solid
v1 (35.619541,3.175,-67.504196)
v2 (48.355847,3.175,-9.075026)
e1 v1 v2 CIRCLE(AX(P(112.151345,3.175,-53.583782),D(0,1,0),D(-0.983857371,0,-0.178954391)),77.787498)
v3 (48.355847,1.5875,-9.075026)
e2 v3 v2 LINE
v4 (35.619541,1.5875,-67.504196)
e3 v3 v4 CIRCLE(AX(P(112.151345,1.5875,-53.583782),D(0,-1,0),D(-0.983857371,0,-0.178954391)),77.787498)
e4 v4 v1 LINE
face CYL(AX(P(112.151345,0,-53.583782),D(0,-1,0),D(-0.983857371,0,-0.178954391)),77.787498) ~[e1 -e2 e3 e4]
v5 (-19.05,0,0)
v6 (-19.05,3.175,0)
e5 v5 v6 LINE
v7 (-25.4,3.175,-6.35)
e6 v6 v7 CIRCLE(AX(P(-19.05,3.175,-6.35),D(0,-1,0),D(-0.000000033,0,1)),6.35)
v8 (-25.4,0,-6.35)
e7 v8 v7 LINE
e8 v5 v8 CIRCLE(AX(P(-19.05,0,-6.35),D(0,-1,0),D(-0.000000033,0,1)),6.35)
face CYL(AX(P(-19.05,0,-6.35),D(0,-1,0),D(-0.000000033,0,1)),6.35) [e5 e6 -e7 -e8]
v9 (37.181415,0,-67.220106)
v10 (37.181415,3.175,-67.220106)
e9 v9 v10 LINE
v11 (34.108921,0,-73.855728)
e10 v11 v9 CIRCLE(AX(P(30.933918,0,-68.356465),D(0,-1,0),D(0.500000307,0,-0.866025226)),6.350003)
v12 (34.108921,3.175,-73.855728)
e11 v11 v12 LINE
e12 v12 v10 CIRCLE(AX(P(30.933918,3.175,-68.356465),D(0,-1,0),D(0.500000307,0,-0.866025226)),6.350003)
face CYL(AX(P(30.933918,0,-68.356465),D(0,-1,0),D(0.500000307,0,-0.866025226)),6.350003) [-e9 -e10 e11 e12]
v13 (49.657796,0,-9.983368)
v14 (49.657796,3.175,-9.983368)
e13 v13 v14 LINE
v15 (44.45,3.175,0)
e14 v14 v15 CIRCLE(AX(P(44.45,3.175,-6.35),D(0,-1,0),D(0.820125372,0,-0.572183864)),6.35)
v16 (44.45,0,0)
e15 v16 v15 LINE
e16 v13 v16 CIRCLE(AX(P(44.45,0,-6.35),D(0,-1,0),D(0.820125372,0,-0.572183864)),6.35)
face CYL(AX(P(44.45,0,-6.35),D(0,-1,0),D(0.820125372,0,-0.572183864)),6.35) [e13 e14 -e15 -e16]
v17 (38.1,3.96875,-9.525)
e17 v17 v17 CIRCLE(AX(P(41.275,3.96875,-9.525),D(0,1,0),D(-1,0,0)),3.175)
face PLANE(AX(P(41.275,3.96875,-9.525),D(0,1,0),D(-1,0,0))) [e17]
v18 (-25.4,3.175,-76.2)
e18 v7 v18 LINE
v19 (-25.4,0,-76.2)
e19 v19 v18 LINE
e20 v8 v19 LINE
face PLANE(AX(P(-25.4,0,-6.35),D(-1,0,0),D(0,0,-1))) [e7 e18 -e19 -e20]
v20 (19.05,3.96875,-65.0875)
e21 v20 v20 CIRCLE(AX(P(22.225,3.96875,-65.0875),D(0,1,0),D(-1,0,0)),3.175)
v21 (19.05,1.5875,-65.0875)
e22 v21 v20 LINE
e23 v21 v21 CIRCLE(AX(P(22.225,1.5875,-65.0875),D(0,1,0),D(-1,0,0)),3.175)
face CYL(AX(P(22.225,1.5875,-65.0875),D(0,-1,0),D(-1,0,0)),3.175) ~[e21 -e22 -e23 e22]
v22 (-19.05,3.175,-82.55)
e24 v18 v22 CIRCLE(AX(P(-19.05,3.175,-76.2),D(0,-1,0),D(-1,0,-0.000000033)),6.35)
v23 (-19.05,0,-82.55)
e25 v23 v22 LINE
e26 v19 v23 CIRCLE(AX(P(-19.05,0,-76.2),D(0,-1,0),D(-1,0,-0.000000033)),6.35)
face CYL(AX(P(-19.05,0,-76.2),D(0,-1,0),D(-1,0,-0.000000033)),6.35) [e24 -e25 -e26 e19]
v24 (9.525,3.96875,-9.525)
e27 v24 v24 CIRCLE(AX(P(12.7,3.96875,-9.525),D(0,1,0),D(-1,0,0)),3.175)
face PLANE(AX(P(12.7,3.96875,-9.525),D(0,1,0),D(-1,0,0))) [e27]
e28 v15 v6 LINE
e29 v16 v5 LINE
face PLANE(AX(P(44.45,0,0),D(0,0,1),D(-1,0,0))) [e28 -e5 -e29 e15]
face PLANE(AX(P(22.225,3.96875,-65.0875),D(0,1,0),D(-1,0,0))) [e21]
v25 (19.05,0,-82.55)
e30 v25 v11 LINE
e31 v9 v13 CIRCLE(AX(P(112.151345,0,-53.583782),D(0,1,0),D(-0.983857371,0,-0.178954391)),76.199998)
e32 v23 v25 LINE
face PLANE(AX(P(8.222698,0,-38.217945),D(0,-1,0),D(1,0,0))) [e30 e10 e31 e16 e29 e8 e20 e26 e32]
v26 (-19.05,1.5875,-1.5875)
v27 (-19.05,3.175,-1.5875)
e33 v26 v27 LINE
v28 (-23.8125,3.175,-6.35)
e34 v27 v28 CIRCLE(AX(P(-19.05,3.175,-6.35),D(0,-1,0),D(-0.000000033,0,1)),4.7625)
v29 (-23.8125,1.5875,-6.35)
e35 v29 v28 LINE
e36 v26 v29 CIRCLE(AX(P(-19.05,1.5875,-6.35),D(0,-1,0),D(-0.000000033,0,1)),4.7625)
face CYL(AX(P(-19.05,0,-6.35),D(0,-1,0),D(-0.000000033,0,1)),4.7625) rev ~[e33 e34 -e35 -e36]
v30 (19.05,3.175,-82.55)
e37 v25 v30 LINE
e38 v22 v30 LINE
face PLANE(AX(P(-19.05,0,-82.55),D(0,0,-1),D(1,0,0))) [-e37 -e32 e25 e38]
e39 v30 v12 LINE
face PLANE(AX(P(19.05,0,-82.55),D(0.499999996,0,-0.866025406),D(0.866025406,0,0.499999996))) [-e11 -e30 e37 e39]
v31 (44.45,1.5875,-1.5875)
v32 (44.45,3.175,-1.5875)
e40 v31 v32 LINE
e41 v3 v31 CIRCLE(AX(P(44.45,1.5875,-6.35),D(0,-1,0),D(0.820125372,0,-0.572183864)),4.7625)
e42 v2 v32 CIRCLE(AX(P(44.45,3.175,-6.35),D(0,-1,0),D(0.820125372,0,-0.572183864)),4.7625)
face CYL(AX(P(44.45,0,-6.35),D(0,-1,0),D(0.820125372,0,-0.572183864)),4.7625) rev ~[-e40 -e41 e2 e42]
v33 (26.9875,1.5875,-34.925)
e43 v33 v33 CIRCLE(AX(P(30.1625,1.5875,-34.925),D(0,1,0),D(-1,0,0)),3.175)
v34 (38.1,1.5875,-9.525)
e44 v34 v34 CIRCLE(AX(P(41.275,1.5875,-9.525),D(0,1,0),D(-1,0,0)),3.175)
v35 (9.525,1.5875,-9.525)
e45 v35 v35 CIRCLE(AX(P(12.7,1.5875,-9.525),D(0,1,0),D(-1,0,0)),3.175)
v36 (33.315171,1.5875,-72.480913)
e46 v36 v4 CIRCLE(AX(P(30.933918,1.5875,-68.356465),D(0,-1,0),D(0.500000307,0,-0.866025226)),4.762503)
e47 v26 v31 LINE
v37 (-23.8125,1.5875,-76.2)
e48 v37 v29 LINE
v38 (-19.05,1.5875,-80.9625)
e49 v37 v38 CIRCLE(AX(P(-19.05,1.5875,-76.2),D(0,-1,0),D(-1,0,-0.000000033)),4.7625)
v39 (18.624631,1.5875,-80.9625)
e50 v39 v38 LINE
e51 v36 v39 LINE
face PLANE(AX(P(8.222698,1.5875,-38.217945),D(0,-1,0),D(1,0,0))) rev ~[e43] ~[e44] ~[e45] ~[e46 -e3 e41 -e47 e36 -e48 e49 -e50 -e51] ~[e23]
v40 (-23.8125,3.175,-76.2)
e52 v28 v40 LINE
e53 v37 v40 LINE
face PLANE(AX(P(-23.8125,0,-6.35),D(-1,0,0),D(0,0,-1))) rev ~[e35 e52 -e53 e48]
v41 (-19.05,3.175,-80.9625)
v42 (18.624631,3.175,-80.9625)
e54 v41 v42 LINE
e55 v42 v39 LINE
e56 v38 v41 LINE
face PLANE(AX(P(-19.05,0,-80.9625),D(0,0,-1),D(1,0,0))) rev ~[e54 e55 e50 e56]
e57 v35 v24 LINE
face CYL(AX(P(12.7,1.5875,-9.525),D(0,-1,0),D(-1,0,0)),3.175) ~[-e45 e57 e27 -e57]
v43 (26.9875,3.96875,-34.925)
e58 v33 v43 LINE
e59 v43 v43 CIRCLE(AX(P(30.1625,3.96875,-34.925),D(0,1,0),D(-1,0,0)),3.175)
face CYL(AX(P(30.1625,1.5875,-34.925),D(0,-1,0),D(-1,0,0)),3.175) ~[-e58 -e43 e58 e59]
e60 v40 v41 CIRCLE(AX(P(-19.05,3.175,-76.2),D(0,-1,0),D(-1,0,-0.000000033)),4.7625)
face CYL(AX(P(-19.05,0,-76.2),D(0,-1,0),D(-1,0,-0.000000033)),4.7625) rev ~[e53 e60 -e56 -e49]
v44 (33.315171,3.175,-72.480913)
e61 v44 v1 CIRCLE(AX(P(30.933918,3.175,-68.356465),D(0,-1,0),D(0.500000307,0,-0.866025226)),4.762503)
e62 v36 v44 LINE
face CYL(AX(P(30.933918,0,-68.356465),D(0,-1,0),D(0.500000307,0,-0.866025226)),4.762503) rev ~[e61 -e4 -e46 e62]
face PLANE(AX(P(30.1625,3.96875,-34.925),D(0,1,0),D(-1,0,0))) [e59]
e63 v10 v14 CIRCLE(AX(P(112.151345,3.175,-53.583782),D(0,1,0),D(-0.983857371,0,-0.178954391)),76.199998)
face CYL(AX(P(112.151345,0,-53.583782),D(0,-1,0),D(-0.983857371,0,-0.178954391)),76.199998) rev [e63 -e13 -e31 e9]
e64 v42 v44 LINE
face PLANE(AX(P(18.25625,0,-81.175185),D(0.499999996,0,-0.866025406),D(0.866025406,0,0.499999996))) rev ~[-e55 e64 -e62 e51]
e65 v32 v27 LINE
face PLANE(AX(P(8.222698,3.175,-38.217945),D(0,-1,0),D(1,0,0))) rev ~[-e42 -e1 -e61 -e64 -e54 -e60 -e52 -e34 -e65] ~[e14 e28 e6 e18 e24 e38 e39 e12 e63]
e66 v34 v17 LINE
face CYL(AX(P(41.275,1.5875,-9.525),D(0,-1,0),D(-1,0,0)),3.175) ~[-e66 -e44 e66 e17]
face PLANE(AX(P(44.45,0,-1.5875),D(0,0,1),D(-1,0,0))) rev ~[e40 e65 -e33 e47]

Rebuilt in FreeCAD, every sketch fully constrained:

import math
import FreeCAD as App
import Part
import Sketcher
from FreeCAD import Vector
Q = App.Units.Quantity


def faces_at(feature, points):
    """Names of the faces that lie closest to the given points."""
    faces = feature.Shape.Faces
    near = lambda p: min(range(len(faces)), key=lambda i: faces[i].distToShape(Part.Vertex(*p))[0])
    return sorted({f"Face{near(p) + 1}" for p in points})

doc = App.newDocument("Part")
body = doc.addObject("PartDesign::Body", "Body")

# Sketch on XZ plane
sketch1 = body.newObject("Sketcher::SketchObject", "Sketch")
sketch1.AttachmentSupport = (doc.getObject("XZ_Plane"), [""])
sketch1.MapMode = "FlatFace"
sketch1.addGeometry([
    Part.LineSegment(Vector(44, 0, 0), Vector(-19, 0, 0)),  # 0
    Part.ArcOfCircle(Part.Circle(Vector(-19, -6, 0), Vector(0, 0, 1), 6), math.radians(90), math.radians(180)),  # 1
    Part.LineSegment(Vector(-25, -6, 0), Vector(-25, -76, 0)),  # 2
    Part.ArcOfCircle(Part.Circle(Vector(-19, -76, 0), Vector(0, 0, 1), 6), math.radians(-180), math.radians(-90)),  # 3
    Part.LineSegment(Vector(-19, -83, 0), Vector(19, -83, 0)),  # 4
    Part.LineSegment(Vector(19, -83, 0), Vector(34, -74, 0)),  # 5
    Part.ArcOfCircle(Part.Circle(Vector(31, -68, 0), Vector(0, 0, 1), 6), math.radians(-60), math.radians(10)),  # 6
    Part.ArcOfCircle(Part.Circle(Vector(112, -54, 0), Vector(0, 0, 1), 76), math.radians(145), math.radians(190)),  # 7
    Part.ArcOfCircle(Part.Circle(Vector(44, -6, 0), Vector(0, 0, 1), 6), math.radians(-35), math.radians(90)),  # 8
], False)
sketch1.addConstraint([
    Sketcher.Constraint("Tangent", 0, 2, 1, 1),
    Sketcher.Constraint("Tangent", 1, 2, 2, 1),
    Sketcher.Constraint("Tangent", 2, 2, 3, 1),
    Sketcher.Constraint("Tangent", 3, 2, 4, 1),
    Sketcher.Constraint("Coincident", 4, 2, 5, 1),
    Sketcher.Constraint("Tangent", 5, 2, 6, 1),
    Sketcher.Constraint("Tangent", 6, 2, 7, 2),
    Sketcher.Constraint("Tangent", 7, 1, 8, 1),
    Sketcher.Constraint("Tangent", 8, 2, 0, 1),
    Sketcher.Constraint("Horizontal", 0),
    Sketcher.Constraint("Vertical", 2),
    Sketcher.Constraint("Horizontal", 4),
    Sketcher.Constraint("Equal", 1, 3),
    Sketcher.Constraint("Equal", 3, 8),
    Sketcher.Constraint("PointOnObject", 0, 2, -1),
    Sketcher.Constraint("Radius", 7, Q("2.9999999 in")),
    Sketcher.Constraint("Radius", 1, Q("0.25 in")),
    Sketcher.Constraint("Radius", 6, Q("0.2500001 in")),
    Sketcher.Constraint("DistanceX", 0, 2, 0, 1, Q("2.5 in")),
    Sketcher.Constraint("DistanceX", 4, 1, 4, 2, Q("1.5 in")),
    Sketcher.Constraint("DistanceY", 3, 3, -1, 1, Q("3 in")),
    Sketcher.Constraint("DistanceX", 1, 2, -1, 1, Q("1 in")),
    Sketcher.Constraint("Angle", 5, Q("30 deg")),
    Sketcher.Constraint("DistanceY", 7, 3, -1, 1, 53.583782),
])
pad1 = body.newObject("PartDesign::Pad", "Pad")
pad1.Profile = sketch1
pad1.Length = Q("0.125 in")
pad1.Reversed = True
doc.recompute()

thickness = body.newObject("PartDesign::Thickness", "Thickness")
thickness.Base = (pad1, faces_at(pad1, [(12.7, 3.175, -41.275)]))
thickness.Value = Q("0.0625 in")
thickness.Reversed = True
thickness.Join = "Arc"

# Sketch on XZ plane
sketch2 = body.newObject("Sketcher::SketchObject", "Sketch001")
sketch2.AttachmentSupport = (doc.getObject("XZ_Plane"), [""])
sketch2.MapMode = "FlatFace"
sketch2.AttachmentOffset = App.Placement(Vector(0, 0, -0.0625 * 25.4), App.Rotation())
sketch2.addGeometry([
    Part.Circle(Vector(41.3, -9.5, 0), Vector(0, 0, 1), 3.2),
    Part.Circle(Vector(12.7, -9.5, 0), Vector(0, 0, 1), 3.2),
    Part.Circle(Vector(30.2, -34.9, 0), Vector(0, 0, 1), 3.2),
    Part.Circle(Vector(22.2, -65.1, 0), Vector(0, 0, 1), 3.2),
], False)
sketch2.addConstraint([
    Sketcher.Constraint("Equal", 0, 1),
    Sketcher.Constraint("Equal", 1, 2),
    Sketcher.Constraint("Equal", 2, 3),
    Sketcher.Constraint("Horizontal", 0, 3, 1, 3),
    Sketcher.Constraint("Diameter", 0, Q("0.25 in")),
    Sketcher.Constraint("DistanceY", 2, 3, 0, 3, Q("1 in")),
    Sketcher.Constraint("DistanceX", -1, 1, 1, 3, Q("0.5 in")),
    Sketcher.Constraint("DistanceX", 3, 3, 0, 3, Q("0.75 in")),
    Sketcher.Constraint("DistanceX", -1, 1, 0, 3, Q("1.625 in")),
    Sketcher.Constraint("DistanceY", 0, 3, -1, 1, Q("0.375 in")),
    Sketcher.Constraint("DistanceX", -1, 1, 2, 3, Q("1.1875 in")),
    Sketcher.Constraint("DistanceY", 3, 3, -1, 1, Q("2.5625 in")),
])
pad2 = body.newObject("PartDesign::Pad", "Pad001")
pad2.Profile = sketch2
pad2.Length = Q("0.09375 in")
pad2.Reversed = True

doc.recompute()
